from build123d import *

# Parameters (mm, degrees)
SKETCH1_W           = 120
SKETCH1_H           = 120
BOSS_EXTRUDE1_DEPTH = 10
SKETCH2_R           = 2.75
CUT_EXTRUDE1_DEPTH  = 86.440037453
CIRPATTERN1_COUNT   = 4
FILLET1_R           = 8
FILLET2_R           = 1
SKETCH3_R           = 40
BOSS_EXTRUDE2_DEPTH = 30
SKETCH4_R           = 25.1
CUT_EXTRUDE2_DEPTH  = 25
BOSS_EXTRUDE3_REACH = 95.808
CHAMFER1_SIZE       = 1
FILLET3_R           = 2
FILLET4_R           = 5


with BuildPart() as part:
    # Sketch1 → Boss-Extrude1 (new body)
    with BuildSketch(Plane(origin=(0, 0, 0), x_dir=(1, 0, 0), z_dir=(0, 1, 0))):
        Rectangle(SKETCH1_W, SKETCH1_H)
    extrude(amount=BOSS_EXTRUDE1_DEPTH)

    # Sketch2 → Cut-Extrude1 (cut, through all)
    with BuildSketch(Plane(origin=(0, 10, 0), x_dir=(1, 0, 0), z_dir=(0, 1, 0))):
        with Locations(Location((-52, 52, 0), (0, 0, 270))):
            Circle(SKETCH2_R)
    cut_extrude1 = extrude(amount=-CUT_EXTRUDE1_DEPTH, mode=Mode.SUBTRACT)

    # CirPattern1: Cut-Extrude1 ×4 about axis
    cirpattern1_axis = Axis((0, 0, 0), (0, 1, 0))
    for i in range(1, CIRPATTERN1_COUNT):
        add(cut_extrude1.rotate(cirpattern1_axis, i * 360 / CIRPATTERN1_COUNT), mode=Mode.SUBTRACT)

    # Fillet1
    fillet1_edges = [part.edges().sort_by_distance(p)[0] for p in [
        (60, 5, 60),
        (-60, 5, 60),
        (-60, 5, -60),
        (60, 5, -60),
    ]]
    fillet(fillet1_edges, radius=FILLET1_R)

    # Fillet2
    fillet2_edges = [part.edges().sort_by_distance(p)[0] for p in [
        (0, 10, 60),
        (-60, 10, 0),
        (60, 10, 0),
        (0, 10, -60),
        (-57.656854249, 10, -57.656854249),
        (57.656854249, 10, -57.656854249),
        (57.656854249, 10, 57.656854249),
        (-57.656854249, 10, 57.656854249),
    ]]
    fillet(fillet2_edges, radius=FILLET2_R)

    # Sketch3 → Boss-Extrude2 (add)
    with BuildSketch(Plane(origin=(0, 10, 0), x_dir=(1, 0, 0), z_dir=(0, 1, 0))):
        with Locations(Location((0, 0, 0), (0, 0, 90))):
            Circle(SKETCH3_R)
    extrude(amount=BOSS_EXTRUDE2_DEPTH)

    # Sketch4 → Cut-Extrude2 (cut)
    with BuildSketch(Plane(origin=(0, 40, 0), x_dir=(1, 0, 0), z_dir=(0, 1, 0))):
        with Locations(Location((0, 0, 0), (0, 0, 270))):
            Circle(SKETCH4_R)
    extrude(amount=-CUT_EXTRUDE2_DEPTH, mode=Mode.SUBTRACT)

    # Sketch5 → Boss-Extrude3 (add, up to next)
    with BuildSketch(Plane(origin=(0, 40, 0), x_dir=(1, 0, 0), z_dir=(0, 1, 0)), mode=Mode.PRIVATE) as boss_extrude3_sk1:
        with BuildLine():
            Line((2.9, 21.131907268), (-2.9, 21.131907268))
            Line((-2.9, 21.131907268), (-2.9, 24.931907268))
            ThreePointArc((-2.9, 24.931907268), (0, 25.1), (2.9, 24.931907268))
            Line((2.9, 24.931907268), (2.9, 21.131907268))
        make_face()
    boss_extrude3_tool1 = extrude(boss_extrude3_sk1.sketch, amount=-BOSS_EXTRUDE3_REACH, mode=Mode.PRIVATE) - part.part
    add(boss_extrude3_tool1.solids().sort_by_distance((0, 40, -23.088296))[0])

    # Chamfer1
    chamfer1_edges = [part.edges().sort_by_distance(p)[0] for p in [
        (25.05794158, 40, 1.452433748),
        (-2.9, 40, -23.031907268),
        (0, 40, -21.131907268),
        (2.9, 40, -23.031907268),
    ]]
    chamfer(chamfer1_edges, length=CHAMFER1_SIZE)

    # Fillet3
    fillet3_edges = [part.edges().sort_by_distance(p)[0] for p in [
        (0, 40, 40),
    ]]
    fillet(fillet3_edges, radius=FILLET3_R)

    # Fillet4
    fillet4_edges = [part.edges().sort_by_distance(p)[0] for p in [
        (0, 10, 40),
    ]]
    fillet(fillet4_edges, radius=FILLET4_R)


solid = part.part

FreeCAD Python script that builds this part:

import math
import FreeCAD as App
import Part
import Sketcher

V = App.Vector


def edges_at(feature, points):
    """Names of the edges that pass closest to the given points."""
    edges = feature.Shape.Edges
    near = lambda p: min(range(len(edges)), key=lambda i: edges[i].distToShape(Part.Vertex(*p))[0])
    return sorted({f"Edge{near(p) + 1}" for p in points})


def add_polygon(sketch, points):
    """Adds a closed chain of lines whose ends are joined by coincident constraints."""
    first, n = sketch.GeometryCount, len(points)
    for a, b in zip(points, points[1:] + points[:1]):
        sketch.addGeometry(Part.LineSegment(App.Vector(*a, 0), App.Vector(*b, 0)), False)
    for i in range(n):
        sketch.addConstraint(Sketcher.Constraint("Coincident", first + i, 2, first + (i + 1) % n, 1))

doc = App.newDocument("Part")
body = doc.addObject("PartDesign::Body", "Body")

# Sketch on XZ plane
sketch1 = body.newObject("Sketcher::SketchObject", "Sketch")
sketch1.AttachmentSupport = (doc.getObject("XZ_Plane"), [""])
sketch1.MapMode = "FlatFace"
add_polygon(sketch1, [(-60, -60), (-60, 60), (60, 60), (60, -60)])  # lines 0-3
sketch1.addConstraint([
    Sketcher.Constraint("Vertical", 0),
    Sketcher.Constraint("Horizontal", 1),
    Sketcher.Constraint("Vertical", 2),
    Sketcher.Constraint("Horizontal", 3),
    Sketcher.Constraint("Symmetric", 0, 2, 2, 2, -1, 1),
    Sketcher.Constraint("Equal", 3, 0),
    Sketcher.Constraint("DistanceX", 1, 1, 1, 2, 120.0),
])
pad1 = body.newObject("PartDesign::Pad", "Pad")
pad1.Profile = sketch1
pad1.Length = 10
pad1.Reversed = True

# Sketch on XZ plane
sketch2 = body.newObject("Sketcher::SketchObject", "Sketch001")
sketch2.AttachmentSupport = (doc.getObject("XZ_Plane"), [""])
sketch2.MapMode = "FlatFace"
sketch2.AttachmentOffset = App.Placement(V(0, 0, -10), App.Rotation())
sketch2.addGeometry(Part.Circle(V(-52, -52, 0), V(0, 0, 1), 2.75), False)
sketch2.addConstraint([
    Sketcher.Constraint("Diameter", 0, 5.5),
    Sketcher.Constraint("DistanceX", 0, 3, -1, 1, 52.0),
    Sketcher.Constraint("DistanceY", 0, 3, -1, 1, 52.0),
])
pocket1 = body.newObject("PartDesign::Pocket", "Pocket")
pocket1.Profile = sketch2
pocket1.Type = "ThroughAll"
pocket1.Reversed = True
doc.recompute()

polarpattern = body.newObject("PartDesign::PolarPattern", "PolarPattern")
polarpattern.Originals = [pocket1]
polarpattern.Axis = (doc.getObject("Y_Axis"), [""])
polarpattern.Angle = 360
polarpattern.Occurrences = 4
body.Tip = polarpattern
doc.recompute()

fillet = body.newObject("PartDesign::Fillet", "Fillet")
fillet.Base = (polarpattern, edges_at(polarpattern, [
    (60, 5, 60),
    (-60, 5, 60),
    (-60, 5, -60),
    (60, 5, -60),
]))
fillet.Radius = 8
doc.recompute()

fillet2 = body.newObject("PartDesign::Fillet", "Fillet001")
fillet2.Base = (fillet, edges_at(fillet, [
    (0, 10, 60),
    (-60, 10, 0),
    (60, 10, 0),
    (0, 10, -60),
    (-57.657, 10, -57.657),
    (57.657, 10, -57.657),
    (57.657, 10, 57.657),
    (-57.657, 10, 57.657),
]))
fillet2.Radius = 1

# Sketch on XZ plane
sketch3 = body.newObject("Sketcher::SketchObject", "Sketch002")
sketch3.AttachmentSupport = (doc.getObject("XZ_Plane"), [""])
sketch3.MapMode = "FlatFace"
sketch3.AttachmentOffset = App.Placement(V(0, 0, -10), App.Rotation())
sketch3.addGeometry(Part.Circle(V(0, 0, 0), V(0, 0, 1), 40), False)
sketch3.addConstraint([
    Sketcher.Constraint("Coincident", 0, 3, -1, 1),
    Sketcher.Constraint("Diameter", 0, 80.0),
])
pad2 = body.newObject("PartDesign::Pad", "Pad001")
pad2.Profile = sketch3
pad2.Length = 30
pad2.Reversed = True

# Sketch on XZ plane
sketch4 = body.newObject("Sketcher::SketchObject", "Sketch003")
sketch4.AttachmentSupport = (doc.getObject("XZ_Plane"), [""])
sketch4.MapMode = "FlatFace"
sketch4.AttachmentOffset = App.Placement(V(0, 0, -40), App.Rotation())
sketch4.addGeometry(Part.Circle(V(0, 0, 0), V(0, 0, 1), 25.1), False)
sketch4.addConstraint([
    Sketcher.Constraint("Coincident", 0, 3, -1, 1),
    Sketcher.Constraint("Diameter", 0, 50.2),
])
pocket2 = body.newObject("PartDesign::Pocket", "Pocket001")
pocket2.Profile = sketch4
pocket2.Length = 25
pocket2.Reversed = True

# Sketch on XZ plane
sketch5 = body.newObject("Sketcher::SketchObject", "Sketch004")
sketch5.AttachmentSupport = (doc.getObject("XZ_Plane"), [""])
sketch5.MapMode = "FlatFace"
sketch5.AttachmentOffset = App.Placement(V(0, 0, -40), App.Rotation())
sketch5.addGeometry([
    Part.LineSegment(V(-2.9, -21.131907, 0), V(2.9, -21.131907, 0)),
    Part.LineSegment(V(2.9, -21.131907, 0), V(2.9, -24.931907, 0)),
    Part.ArcOfCircle(Part.Circle(V(0, 0, 0), V(0, 0, 1), 25.1), math.radians(-96.634648), math.radians(-83.365352)),
    Part.LineSegment(V(-2.9, -24.931907, 0), V(-2.9, -21.131907, 0)),
], False)
sketch5.addConstraint([
    Sketcher.Constraint("Coincident", 0, 2, 1, 1),
    Sketcher.Constraint("Coincident", 1, 2, 2, 2),
    Sketcher.Constraint("Coincident", 2, 1, 3, 1),
    Sketcher.Constraint("Coincident", 3, 2, 0, 1),
    Sketcher.Constraint("Horizontal", 0),
    Sketcher.Constraint("Vertical", 1),
    Sketcher.Constraint("Vertical", 3),
    Sketcher.Constraint("Coincident", 2, 3, -1, 1),
    Sketcher.Constraint("Horizontal", 1, 2, 2, 1),
    Sketcher.Constraint("Radius", 2, 25.1),
    Sketcher.Constraint("DistanceX", 0, 1, 0, 2, 5.8),
    Sketcher.Constraint("DistanceY", 1, 2, 1, 1, 3.8),
])
pad3 = body.newObject("PartDesign::Pad", "Pad002")
pad3.Profile = sketch5
pad3.Type = "UpToFirst"
doc.recompute()

chamfer = body.newObject("PartDesign::Chamfer", "Chamfer")
chamfer.Base = (pad3, edges_at(pad3, [
    (25.058, 40, 1.452),
    (-2.9, 40, -23.032),
    (0, 40, -21.132),
    (2.9, 40, -23.032),
]))
chamfer.Size = 1
doc.recompute()

fillet3 = body.newObject("PartDesign::Fillet", "Fillet002")
fillet3.Base = (chamfer, edges_at(chamfer, [(0, 40, 40)]))
fillet3.Radius = 2
doc.recompute()

fillet4 = body.newObject("PartDesign::Fillet", "Fillet003")
fillet4.Base = (fillet3, edges_at(fillet3, [(0, 10, 40)]))
fillet4.Radius = 5

doc.recompute()
